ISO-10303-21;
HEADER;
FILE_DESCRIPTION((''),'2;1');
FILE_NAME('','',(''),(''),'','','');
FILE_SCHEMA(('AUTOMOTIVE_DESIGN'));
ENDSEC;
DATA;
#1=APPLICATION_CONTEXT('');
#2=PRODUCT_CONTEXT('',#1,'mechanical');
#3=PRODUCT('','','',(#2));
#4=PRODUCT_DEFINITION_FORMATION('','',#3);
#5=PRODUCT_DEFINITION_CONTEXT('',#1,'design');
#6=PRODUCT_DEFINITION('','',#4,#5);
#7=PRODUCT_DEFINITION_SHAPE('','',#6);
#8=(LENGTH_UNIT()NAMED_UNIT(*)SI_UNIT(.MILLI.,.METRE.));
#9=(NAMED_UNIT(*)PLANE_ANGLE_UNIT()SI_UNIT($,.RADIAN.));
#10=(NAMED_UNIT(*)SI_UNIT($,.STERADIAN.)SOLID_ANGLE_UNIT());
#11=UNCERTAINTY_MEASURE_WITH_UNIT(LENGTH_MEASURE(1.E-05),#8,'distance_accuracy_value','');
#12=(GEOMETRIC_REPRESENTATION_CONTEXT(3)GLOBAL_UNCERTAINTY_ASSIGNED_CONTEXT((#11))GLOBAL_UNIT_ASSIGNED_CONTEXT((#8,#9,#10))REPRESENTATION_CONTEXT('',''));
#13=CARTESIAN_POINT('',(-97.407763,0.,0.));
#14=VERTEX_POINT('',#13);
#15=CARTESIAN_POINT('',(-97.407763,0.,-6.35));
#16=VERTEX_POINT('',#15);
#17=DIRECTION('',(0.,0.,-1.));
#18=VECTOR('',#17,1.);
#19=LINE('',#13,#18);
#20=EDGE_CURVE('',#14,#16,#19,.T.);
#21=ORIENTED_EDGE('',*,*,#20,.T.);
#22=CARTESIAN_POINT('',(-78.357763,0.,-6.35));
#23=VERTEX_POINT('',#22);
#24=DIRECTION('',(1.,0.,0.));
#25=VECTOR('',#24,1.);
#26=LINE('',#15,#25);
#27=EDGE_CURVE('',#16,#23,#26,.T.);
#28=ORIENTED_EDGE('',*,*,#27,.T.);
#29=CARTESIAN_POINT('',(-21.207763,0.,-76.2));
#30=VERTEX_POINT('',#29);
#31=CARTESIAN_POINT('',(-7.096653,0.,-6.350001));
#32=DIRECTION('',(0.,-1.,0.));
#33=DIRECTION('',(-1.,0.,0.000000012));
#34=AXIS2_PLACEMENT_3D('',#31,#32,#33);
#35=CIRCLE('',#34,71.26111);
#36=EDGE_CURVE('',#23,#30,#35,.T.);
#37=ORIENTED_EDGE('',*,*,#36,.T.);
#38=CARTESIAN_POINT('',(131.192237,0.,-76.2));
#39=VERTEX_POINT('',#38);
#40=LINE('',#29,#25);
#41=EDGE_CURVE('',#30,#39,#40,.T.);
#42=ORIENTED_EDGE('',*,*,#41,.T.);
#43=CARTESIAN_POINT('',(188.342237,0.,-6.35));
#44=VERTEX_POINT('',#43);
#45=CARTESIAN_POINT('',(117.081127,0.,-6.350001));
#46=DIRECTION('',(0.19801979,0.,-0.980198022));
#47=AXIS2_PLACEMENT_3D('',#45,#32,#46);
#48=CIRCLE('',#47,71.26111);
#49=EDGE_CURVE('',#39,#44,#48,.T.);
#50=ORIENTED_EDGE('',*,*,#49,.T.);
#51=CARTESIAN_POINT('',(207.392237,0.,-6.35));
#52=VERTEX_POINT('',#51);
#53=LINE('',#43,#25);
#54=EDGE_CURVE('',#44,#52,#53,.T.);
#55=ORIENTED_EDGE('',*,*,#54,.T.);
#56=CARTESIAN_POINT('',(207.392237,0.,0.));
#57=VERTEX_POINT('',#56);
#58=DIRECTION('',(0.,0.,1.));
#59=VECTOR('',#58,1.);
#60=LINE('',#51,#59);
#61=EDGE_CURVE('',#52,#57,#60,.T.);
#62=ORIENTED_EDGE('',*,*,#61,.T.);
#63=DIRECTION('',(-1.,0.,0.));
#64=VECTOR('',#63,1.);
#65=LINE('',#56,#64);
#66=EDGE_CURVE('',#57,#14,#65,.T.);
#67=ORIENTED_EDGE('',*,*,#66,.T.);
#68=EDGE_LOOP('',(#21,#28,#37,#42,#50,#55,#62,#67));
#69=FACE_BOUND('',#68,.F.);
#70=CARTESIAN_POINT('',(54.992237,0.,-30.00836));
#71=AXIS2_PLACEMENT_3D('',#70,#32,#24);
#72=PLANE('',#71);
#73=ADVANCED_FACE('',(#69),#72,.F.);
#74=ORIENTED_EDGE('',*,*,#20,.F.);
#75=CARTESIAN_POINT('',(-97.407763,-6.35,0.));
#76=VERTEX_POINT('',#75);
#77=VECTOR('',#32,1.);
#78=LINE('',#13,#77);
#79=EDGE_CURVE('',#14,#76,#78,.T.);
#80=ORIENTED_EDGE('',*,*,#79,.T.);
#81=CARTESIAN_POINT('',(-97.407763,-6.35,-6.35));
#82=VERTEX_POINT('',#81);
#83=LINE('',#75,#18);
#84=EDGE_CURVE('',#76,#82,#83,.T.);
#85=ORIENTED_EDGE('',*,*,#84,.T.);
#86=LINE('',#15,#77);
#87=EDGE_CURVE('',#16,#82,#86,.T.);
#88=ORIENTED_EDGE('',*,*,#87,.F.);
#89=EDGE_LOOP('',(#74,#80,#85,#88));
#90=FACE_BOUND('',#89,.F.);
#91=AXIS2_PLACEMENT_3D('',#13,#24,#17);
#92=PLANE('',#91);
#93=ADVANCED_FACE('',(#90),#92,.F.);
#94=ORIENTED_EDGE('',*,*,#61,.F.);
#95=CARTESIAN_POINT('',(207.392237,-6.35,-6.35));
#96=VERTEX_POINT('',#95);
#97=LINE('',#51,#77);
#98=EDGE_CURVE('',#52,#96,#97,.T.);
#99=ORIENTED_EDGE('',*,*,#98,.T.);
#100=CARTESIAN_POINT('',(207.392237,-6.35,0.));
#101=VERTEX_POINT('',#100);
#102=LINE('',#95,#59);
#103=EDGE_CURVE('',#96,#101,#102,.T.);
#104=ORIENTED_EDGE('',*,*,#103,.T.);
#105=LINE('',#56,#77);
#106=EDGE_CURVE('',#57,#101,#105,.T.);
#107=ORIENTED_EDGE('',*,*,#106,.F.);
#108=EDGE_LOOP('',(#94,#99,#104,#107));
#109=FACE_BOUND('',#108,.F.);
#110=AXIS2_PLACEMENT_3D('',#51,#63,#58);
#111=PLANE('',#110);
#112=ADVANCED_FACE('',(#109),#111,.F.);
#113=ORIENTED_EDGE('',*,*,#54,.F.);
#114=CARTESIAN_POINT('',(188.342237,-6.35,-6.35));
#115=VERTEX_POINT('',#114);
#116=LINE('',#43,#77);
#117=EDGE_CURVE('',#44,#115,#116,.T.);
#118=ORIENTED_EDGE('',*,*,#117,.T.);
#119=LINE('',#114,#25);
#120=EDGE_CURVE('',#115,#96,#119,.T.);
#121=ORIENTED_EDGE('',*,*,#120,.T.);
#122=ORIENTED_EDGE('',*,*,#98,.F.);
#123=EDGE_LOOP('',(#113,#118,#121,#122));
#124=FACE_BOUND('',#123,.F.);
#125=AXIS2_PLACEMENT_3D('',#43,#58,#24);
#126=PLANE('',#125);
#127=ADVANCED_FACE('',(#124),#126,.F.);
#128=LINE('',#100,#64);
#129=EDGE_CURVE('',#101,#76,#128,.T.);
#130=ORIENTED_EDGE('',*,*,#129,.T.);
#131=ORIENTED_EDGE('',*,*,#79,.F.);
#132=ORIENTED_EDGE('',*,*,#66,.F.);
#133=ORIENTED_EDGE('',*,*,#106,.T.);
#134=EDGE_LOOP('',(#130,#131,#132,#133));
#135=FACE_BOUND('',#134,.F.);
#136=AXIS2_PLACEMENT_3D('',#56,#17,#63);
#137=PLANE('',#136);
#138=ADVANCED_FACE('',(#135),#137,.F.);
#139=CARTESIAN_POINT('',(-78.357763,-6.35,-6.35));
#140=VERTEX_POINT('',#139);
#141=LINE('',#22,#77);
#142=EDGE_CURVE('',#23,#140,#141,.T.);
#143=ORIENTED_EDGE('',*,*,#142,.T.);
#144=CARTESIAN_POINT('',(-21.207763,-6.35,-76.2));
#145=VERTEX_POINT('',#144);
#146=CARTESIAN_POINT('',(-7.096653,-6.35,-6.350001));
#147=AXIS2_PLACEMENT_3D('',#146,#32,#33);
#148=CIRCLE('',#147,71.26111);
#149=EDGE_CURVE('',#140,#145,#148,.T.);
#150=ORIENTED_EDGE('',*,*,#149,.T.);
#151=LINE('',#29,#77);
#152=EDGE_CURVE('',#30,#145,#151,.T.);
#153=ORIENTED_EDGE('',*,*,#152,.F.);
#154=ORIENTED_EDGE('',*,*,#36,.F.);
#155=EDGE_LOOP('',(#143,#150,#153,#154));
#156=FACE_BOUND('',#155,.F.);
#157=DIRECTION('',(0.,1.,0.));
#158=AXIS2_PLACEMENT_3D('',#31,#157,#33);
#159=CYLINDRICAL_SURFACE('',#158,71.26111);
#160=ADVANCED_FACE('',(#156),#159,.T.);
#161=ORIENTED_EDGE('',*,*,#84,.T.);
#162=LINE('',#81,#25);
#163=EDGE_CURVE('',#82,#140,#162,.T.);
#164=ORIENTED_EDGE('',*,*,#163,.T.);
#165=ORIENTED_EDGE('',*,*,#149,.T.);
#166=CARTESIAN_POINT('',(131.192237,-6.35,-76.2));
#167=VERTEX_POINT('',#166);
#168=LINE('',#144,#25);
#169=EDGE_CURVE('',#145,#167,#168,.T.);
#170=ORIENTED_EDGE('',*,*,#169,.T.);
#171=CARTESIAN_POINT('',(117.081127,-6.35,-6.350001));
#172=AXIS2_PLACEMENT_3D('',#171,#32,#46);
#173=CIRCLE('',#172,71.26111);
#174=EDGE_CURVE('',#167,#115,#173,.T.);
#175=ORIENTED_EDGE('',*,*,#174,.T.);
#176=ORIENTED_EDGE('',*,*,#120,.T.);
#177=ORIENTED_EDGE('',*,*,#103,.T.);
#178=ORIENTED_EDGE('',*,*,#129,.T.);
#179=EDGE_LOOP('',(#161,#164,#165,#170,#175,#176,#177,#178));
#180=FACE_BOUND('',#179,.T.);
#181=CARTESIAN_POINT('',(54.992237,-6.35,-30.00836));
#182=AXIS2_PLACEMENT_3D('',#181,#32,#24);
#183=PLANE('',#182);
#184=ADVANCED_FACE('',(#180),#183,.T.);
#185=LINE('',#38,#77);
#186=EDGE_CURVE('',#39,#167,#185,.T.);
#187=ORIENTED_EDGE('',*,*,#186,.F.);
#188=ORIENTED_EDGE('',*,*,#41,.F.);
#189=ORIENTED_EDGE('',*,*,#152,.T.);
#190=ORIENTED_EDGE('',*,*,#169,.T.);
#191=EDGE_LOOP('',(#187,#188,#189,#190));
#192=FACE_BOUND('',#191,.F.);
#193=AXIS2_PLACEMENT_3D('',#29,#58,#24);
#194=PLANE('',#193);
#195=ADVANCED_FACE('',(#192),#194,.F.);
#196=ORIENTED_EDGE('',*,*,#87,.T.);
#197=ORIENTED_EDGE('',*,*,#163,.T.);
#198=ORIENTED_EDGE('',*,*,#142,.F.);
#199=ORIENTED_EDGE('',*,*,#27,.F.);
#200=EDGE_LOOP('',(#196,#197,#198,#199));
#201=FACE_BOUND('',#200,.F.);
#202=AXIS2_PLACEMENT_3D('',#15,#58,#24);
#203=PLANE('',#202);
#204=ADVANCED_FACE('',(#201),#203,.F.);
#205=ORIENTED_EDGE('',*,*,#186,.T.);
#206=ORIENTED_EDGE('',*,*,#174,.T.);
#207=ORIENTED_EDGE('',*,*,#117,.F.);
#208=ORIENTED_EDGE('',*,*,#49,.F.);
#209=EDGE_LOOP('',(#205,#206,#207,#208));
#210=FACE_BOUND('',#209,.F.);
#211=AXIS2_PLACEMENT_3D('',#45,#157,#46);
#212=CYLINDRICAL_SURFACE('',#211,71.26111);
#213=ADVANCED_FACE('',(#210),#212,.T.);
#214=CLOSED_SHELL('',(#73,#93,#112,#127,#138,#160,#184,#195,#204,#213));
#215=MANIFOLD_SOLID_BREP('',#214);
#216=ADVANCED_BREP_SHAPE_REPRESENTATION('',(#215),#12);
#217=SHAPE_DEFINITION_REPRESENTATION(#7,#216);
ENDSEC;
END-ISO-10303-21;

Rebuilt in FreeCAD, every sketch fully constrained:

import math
import FreeCAD as App
import Part
import Sketcher
from FreeCAD import Vector
Q = App.Units.Quantity

doc = App.newDocument("Part")
body = doc.addObject("PartDesign::Body", "Body")

sketch1 = doc.addObject("Sketcher::SketchObject", "Sketch")
body.addObject(sketch1)
sketch1.AttachmentSupport = (doc.XZ_Plane, [""])
sketch1.MapMode = "FlatFace"
sketch1.addGeometry(Part.LineSegment(Vector(-97, 0, 0), Vector(-97, -6, 0)), False)
sketch1.addGeometry(Part.LineSegment(Vector(-97, -6, 0), Vector(-78, -6, 0)), False)
sketch1.addGeometry(Part.ArcOfCircle(Part.Circle(Vector(-7, -6, 0), Vector(0, 0, 1), 71), math.radians(180), math.radians(259)), False)
sketch1.addGeometry(Part.LineSegment(Vector(-21, -76, 0), Vector(131, -76, 0)), False)
sketch1.addGeometry(Part.ArcOfCircle(Part.Circle(Vector(117, -6, 0), Vector(0, 0, 1), 71), math.radians(-79), math.radians(0)), False)
sketch1.addGeometry(Part.LineSegment(Vector(188, -6, 0), Vector(207, -6, 0)), False)
sketch1.addGeometry(Part.LineSegment(Vector(207, -6, 0), Vector(207, 0, 0)), False)
sketch1.addGeometry(Part.LineSegment(Vector(207, 0, 0), Vector(-97, 0, 0)), False)
sketch1.addConstraint(Sketcher.Constraint("Coincident", 0, 2, 1, 1))
sketch1.addConstraint(Sketcher.Constraint("Coincident", 1, 2, 2, 1))
sketch1.addConstraint(Sketcher.Constraint("Coincident", 2, 2, 3, 1))
sketch1.addConstraint(Sketcher.Constraint("Coincident", 3, 2, 4, 1))
sketch1.addConstraint(Sketcher.Constraint("Coincident", 4, 2, 5, 1))
sketch1.addConstraint(Sketcher.Constraint("Coincident", 5, 2, 6, 1))
sketch1.addConstraint(Sketcher.Constraint("Coincident", 6, 2, 7, 1))
sketch1.addConstraint(Sketcher.Constraint("Coincident", 7, 2, 0, 1))
sketch1.addConstraint(Sketcher.Constraint("Vertical", 0))
sketch1.addConstraint(Sketcher.Constraint("Horizontal", 1))
sketch1.addConstraint(Sketcher.Constraint("Horizontal", 3))
sketch1.addConstraint(Sketcher.Constraint("Horizontal", 5))
sketch1.addConstraint(Sketcher.Constraint("Vertical", 6))
sketch1.addConstraint(Sketcher.Constraint("Horizontal", 7))
sketch1.addConstraint(Sketcher.Constraint("Equal", 2, 4))
sketch1.addConstraint(Sketcher.Constraint("PointOnObject", 6, 2, -1))
sketch1.addConstraint(Sketcher.Constraint("Horizontal", 2, 3, 4, 3))
sketch1.addConstraint(Sketcher.Constraint("Horizontal", 4, 3, 0, 2))
sketch1.addConstraint(Sketcher.Constraint("Horizontal", 1, 2, 4, 2))
sketch1.addConstraint(Sketcher.Constraint("Equal", 1, 5))
sketch1.addConstraint(Sketcher.Constraint("DistanceX", 3, 1, 3, 2, Q("6 in")))
sketch1.addConstraint(Sketcher.Constraint("DistanceX", 7, 2, 7, 1, Q("12 in")))
sketch1.addConstraint(Sketcher.Constraint("DistanceY", 2, 2, -1, 1, Q("3 in")))
sketch1.addConstraint(Sketcher.Constraint("DistanceX", 1, 1, 1, 2, Q("0.75 in")))
sketch1.addConstraint(Sketcher.Constraint("DistanceY", 0, 2, 0, 1, Q("0.25 in")))
sketch1.addConstraint(Sketcher.Constraint("DistanceX", 2, 3, -1, 1, Q("7.096653 mm")))
pad1 = doc.addObject("PartDesign::Pad", "Pad")
body.addObject(pad1)
pad1.Profile = sketch1
pad1.Length = Q("0.25 in")

doc.recompute()
